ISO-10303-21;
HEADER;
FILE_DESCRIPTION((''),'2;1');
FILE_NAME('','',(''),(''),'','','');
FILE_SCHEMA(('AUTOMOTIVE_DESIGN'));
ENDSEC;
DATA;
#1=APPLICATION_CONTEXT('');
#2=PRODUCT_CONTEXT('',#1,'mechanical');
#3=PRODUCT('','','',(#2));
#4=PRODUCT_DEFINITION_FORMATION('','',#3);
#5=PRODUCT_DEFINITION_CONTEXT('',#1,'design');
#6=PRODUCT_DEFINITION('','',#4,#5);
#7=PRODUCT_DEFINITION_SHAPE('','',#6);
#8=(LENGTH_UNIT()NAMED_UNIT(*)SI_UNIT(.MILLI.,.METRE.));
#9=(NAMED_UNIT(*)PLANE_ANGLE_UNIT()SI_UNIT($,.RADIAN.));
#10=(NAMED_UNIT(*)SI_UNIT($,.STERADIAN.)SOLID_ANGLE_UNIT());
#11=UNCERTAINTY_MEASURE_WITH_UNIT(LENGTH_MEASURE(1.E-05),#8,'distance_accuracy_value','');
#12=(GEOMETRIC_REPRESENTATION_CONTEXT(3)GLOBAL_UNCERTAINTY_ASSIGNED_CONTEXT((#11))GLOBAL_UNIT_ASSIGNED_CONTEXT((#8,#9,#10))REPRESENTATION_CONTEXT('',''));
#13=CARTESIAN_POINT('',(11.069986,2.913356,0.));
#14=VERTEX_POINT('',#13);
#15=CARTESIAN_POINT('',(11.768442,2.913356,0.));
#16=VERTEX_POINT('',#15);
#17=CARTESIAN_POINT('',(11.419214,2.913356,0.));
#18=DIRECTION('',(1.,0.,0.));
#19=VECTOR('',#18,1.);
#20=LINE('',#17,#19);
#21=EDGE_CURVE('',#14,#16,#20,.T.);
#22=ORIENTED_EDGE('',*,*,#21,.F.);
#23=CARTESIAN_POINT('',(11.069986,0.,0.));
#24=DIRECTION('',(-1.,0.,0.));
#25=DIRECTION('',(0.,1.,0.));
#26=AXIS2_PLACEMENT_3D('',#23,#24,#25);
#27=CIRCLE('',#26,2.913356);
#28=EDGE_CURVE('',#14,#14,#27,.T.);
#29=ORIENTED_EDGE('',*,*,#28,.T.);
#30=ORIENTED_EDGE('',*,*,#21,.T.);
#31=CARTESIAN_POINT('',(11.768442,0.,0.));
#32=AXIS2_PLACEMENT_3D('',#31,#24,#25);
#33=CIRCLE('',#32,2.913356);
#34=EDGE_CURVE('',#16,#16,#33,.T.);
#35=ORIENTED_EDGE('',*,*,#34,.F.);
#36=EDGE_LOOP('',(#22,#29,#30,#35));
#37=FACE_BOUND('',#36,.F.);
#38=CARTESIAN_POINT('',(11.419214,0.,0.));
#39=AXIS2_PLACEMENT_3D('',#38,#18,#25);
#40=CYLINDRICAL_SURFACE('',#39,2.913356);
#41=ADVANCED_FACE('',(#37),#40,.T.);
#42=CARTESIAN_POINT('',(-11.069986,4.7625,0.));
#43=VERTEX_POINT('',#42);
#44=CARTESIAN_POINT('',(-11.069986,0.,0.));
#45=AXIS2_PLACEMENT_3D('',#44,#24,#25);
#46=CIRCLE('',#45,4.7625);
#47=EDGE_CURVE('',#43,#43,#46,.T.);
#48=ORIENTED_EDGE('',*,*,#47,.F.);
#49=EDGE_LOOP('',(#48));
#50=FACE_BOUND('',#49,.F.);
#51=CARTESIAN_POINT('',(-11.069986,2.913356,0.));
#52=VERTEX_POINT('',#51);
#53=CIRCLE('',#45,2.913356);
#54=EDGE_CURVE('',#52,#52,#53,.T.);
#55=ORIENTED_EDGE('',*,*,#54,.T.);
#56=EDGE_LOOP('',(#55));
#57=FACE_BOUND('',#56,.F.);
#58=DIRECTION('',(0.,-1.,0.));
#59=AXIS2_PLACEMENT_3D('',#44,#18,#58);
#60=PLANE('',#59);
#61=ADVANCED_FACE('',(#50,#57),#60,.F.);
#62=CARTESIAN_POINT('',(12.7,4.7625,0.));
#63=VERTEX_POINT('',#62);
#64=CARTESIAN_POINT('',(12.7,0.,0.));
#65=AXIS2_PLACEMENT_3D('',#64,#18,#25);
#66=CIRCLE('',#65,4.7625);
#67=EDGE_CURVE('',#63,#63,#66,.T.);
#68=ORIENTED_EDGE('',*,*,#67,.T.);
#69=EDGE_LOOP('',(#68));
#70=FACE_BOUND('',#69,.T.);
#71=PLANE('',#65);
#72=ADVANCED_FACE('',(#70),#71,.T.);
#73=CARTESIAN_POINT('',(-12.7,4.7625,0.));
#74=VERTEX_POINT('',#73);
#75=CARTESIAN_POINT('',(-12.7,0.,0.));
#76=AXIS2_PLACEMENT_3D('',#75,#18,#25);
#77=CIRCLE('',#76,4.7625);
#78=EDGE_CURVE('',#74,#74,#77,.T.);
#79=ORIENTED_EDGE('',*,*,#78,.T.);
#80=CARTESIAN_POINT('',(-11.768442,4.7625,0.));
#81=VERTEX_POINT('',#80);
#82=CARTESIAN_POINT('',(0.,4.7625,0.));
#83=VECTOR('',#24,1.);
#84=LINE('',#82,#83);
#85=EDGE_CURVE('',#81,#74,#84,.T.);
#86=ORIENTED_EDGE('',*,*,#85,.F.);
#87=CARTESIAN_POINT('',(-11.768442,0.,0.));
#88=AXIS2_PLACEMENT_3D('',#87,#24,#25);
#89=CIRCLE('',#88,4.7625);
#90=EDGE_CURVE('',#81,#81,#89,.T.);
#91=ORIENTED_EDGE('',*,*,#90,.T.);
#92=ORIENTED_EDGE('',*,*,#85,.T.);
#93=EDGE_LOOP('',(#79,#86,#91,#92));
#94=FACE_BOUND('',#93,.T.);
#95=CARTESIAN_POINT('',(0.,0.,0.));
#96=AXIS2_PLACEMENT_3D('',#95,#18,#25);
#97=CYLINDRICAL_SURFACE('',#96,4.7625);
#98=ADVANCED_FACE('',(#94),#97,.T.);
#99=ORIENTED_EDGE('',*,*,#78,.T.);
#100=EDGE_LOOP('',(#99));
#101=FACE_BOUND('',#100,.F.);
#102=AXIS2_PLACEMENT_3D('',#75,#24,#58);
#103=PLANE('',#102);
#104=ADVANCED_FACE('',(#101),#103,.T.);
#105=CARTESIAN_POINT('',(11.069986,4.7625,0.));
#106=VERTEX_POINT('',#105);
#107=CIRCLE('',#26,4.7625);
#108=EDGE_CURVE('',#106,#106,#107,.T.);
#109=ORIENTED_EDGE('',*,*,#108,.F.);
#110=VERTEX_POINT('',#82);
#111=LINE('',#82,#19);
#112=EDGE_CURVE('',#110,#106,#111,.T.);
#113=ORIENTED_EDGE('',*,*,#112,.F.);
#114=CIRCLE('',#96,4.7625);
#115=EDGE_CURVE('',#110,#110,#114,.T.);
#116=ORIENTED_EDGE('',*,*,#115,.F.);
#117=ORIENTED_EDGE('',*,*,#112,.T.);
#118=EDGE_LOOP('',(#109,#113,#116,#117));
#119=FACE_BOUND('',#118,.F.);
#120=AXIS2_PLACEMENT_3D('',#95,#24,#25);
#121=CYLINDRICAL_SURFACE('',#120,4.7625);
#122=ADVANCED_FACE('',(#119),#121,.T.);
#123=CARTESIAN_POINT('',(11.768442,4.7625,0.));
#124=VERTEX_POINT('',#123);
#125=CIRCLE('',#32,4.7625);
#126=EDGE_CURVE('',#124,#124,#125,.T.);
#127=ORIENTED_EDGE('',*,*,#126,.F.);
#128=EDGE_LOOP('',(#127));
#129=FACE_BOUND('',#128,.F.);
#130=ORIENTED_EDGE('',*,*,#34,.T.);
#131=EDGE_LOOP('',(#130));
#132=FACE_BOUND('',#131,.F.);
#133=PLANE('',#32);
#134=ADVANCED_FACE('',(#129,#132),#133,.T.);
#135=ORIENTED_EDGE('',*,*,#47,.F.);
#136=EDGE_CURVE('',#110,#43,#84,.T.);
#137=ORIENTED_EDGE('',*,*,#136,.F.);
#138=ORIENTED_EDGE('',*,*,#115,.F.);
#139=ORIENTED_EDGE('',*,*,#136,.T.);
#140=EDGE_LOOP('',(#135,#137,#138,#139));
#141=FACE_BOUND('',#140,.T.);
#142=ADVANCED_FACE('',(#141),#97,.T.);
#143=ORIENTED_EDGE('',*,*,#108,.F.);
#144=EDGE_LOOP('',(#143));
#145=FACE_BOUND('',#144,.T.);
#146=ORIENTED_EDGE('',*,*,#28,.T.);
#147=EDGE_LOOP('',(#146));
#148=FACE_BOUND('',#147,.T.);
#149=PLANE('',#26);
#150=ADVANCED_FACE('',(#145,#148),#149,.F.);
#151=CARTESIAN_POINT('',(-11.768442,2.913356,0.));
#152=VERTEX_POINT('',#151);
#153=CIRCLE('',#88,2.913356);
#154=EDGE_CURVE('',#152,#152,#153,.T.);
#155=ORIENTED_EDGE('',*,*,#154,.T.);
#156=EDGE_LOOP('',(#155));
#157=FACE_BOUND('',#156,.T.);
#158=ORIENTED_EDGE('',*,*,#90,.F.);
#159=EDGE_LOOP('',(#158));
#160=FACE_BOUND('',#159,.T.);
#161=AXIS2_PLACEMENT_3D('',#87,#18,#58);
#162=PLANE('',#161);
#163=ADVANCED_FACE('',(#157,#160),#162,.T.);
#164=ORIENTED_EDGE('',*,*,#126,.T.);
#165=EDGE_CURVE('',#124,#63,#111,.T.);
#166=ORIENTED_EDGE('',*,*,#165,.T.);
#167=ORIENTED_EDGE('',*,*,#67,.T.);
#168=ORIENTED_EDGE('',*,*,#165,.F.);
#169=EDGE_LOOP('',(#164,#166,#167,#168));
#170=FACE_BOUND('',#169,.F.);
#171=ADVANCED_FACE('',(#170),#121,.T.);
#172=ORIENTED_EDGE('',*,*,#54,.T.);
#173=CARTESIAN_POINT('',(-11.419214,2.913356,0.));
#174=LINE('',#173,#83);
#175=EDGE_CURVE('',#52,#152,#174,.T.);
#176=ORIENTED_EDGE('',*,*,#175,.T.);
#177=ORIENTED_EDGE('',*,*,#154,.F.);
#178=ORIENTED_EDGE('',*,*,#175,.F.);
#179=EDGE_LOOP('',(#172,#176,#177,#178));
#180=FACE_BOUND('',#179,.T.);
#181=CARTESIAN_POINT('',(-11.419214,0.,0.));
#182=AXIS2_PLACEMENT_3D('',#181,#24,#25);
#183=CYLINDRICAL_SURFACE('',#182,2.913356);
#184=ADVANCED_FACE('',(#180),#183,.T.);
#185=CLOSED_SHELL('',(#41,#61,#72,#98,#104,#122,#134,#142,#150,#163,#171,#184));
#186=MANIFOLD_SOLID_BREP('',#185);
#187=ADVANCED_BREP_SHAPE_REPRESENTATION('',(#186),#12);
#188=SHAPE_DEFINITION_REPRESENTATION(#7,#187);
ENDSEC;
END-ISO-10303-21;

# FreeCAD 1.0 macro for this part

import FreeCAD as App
import Part
import Sketcher
Q = App.Units.Quantity

doc = App.newDocument("Part")
body = doc.addObject("PartDesign::Body", "Body")

# Sketch on YZ plane
sketch1 = body.newObject("Sketcher::SketchObject", "Sketch")
sketch1.AttachmentSupport = (doc.getObject("YZ_Plane"), [""])
sketch1.MapMode = "FlatFace"
sketch1.addGeometry(Part.Circle(App.Vector(0, 0, 0), App.Vector(0, 0, 1), 4.8), False)
sketch1.addConstraint([
    Sketcher.Constraint("Coincident", 0, 3, -1, 1),
    Sketcher.Constraint("Diameter", 0, Q("0.375 in")),
])
pad1 = body.newObject("PartDesign::Pad", "Pad")
pad1.Profile = sketch1
pad1.Length = Q("0.5 in")

# Sketch on XY plane
sketch2 = body.newObject("Sketcher::SketchObject", "Sketch001")
sketch2.AttachmentSupport = (doc.getObject("XY_Plane"), [""])
sketch2.MapMode = "FlatFace"
sketch2.addGeometry([
    Part.LineSegment(App.Vector(11.1, 5.2, 0), App.Vector(11.1, 2.9, 0)),
    Part.LineSegment(App.Vector(11.1, 2.9, 0), App.Vector(11.8, 2.9, 0)),
    Part.LineSegment(App.Vector(11.8, 2.9, 0), App.Vector(11.8, 5.2, 0)),
    Part.LineSegment(App.Vector(11.8, 5.2, 0), App.Vector(11.1, 5.2, 0)),
], False)
sketch2.addConstraint([
    Sketcher.Constraint("Coincident", 0, 2, 1, 1),
    Sketcher.Constraint("Coincident", 1, 2, 2, 1),
    Sketcher.Constraint("Coincident", 2, 2, 3, 1),
    Sketcher.Constraint("Coincident", 3, 2, 0, 1),
    Sketcher.Constraint("Vertical", 0),
    Sketcher.Constraint("Horizontal", 1),
    Sketcher.Constraint("Vertical", 2),
    Sketcher.Constraint("Horizontal", 3),
    Sketcher.Constraint("DistanceY", 0, 2, 0, 1, Q("2.279171 mm")),
    Sketcher.Constraint("DistanceX", 1, 1, 1, 2, Q("0.698456 mm")),
    Sketcher.Constraint("DistanceX", -1, 1, 0, 2, Q("11.069986 mm")),
    Sketcher.Constraint("DistanceY", -1, 1, 0, 2, Q("2.913356 mm")),
])
groove = body.newObject("PartDesign::Groove", "Groove")
groove.Profile = sketch2
groove.ReferenceAxis = (sketch2, ["H_Axis"])
groove.Angle = 360
body2 = doc.addObject("PartDesign::Body", "Body001")
doc.recompute()

body2.BaseFeature = body
doc.recompute()

mirroring = doc.addObject("Part::Mirroring", "Mirroring")
mirroring.Source = body
mirroring.Base = App.Vector(0, 0, 0)
mirroring.Normal = App.Vector(1, 0, 0)
body3 = doc.addObject("PartDesign::Body", "Body002")
body3.BaseFeature = mirroring
boolean = body2.newObject("PartDesign::Boolean", "Boolean")
boolean.Type = "Fuse"
boolean.addObjects([body3])
doc.recompute()
mirroring.Visibility = False

doc.recompute()
